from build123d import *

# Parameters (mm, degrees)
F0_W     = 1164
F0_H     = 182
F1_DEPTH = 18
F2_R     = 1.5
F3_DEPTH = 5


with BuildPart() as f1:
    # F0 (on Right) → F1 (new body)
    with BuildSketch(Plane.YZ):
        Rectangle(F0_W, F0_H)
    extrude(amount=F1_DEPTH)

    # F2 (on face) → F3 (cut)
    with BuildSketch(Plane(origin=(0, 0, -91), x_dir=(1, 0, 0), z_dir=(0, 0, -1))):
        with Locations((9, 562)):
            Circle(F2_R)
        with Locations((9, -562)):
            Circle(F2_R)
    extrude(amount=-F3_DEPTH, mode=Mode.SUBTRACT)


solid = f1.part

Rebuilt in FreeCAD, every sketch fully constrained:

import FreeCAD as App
import Part
import Sketcher
from FreeCAD import Vector
Q = App.Units.Quantity


def add_polygon(sketch, points):
    """Adds a closed chain of lines whose ends are joined by coincident constraints."""
    first, n = sketch.GeometryCount, len(points)
    for a, b in zip(points, points[1:] + points[:1]):
        sketch.addGeometry(Part.LineSegment(App.Vector(*a, 0), App.Vector(*b, 0)), False)
    for i in range(n):
        sketch.addConstraint(Sketcher.Constraint("Coincident", first + i, 2, first + (i + 1) % n, 1))

doc = App.newDocument("Part")
body = doc.addObject("PartDesign::Body", "Body")

# Sketch on YZ plane
sketch1 = body.newObject("Sketcher::SketchObject", "Sketch")
sketch1.AttachmentSupport = (doc.getObject("YZ_Plane"), [""])
sketch1.MapMode = "FlatFace"
add_polygon(sketch1, [(-582, 91), (-582, -91), (582, -91), (582, 91)])  # lines 0-3
sketch1.addConstraint([
    Sketcher.Constraint("Vertical", 0),
    Sketcher.Constraint("Horizontal", 1),
    Sketcher.Constraint("Vertical", 2),
    Sketcher.Constraint("Horizontal", 3),
    Sketcher.Constraint("Symmetric", 0, 2, 2, 2, -1, 1),
    Sketcher.Constraint("DistanceX", 1, 1, 1, 2, Q("1164 mm")),
    Sketcher.Constraint("DistanceY", 0, 2, 0, 1, Q("182 mm")),
])
pad1 = body.newObject("PartDesign::Pad", "Pad")
pad1.Profile = sketch1
pad1.Length = 18

# Sketch on XY plane
sketch2 = body.newObject("Sketcher::SketchObject", "Sketch001")
sketch2.AttachmentSupport = (doc.getObject("XY_Plane"), [""])
sketch2.MapMode = "FlatFace"
sketch2.AttachmentOffset = App.Placement(Vector(0, 0, -91), App.Rotation())
sketch2.addGeometry([
    Part.Circle(Vector(9, -562, 0), Vector(0, 0, 1), 1.5),
    Part.Circle(Vector(9, 562, 0), Vector(0, 0, 1), 1.5),
], False)
sketch2.addConstraint([
    Sketcher.Constraint("Equal", 0, 1),
    Sketcher.Constraint("Symmetric", 0, 3, 1, 3, -1),
    Sketcher.Constraint("Diameter", 0, Q("3 mm")),
    Sketcher.Constraint("DistanceX", -1, 1, 0, 3, Q("9 mm")),
    Sketcher.Constraint("DistanceY", 0, 3, -1, 1, Q("562 mm")),
])
pocket1 = body.newObject("PartDesign::Pocket", "Pocket")
pocket1.Profile = sketch2
pocket1.Length = 5
pocket1.Reversed = True

doc.recompute()
